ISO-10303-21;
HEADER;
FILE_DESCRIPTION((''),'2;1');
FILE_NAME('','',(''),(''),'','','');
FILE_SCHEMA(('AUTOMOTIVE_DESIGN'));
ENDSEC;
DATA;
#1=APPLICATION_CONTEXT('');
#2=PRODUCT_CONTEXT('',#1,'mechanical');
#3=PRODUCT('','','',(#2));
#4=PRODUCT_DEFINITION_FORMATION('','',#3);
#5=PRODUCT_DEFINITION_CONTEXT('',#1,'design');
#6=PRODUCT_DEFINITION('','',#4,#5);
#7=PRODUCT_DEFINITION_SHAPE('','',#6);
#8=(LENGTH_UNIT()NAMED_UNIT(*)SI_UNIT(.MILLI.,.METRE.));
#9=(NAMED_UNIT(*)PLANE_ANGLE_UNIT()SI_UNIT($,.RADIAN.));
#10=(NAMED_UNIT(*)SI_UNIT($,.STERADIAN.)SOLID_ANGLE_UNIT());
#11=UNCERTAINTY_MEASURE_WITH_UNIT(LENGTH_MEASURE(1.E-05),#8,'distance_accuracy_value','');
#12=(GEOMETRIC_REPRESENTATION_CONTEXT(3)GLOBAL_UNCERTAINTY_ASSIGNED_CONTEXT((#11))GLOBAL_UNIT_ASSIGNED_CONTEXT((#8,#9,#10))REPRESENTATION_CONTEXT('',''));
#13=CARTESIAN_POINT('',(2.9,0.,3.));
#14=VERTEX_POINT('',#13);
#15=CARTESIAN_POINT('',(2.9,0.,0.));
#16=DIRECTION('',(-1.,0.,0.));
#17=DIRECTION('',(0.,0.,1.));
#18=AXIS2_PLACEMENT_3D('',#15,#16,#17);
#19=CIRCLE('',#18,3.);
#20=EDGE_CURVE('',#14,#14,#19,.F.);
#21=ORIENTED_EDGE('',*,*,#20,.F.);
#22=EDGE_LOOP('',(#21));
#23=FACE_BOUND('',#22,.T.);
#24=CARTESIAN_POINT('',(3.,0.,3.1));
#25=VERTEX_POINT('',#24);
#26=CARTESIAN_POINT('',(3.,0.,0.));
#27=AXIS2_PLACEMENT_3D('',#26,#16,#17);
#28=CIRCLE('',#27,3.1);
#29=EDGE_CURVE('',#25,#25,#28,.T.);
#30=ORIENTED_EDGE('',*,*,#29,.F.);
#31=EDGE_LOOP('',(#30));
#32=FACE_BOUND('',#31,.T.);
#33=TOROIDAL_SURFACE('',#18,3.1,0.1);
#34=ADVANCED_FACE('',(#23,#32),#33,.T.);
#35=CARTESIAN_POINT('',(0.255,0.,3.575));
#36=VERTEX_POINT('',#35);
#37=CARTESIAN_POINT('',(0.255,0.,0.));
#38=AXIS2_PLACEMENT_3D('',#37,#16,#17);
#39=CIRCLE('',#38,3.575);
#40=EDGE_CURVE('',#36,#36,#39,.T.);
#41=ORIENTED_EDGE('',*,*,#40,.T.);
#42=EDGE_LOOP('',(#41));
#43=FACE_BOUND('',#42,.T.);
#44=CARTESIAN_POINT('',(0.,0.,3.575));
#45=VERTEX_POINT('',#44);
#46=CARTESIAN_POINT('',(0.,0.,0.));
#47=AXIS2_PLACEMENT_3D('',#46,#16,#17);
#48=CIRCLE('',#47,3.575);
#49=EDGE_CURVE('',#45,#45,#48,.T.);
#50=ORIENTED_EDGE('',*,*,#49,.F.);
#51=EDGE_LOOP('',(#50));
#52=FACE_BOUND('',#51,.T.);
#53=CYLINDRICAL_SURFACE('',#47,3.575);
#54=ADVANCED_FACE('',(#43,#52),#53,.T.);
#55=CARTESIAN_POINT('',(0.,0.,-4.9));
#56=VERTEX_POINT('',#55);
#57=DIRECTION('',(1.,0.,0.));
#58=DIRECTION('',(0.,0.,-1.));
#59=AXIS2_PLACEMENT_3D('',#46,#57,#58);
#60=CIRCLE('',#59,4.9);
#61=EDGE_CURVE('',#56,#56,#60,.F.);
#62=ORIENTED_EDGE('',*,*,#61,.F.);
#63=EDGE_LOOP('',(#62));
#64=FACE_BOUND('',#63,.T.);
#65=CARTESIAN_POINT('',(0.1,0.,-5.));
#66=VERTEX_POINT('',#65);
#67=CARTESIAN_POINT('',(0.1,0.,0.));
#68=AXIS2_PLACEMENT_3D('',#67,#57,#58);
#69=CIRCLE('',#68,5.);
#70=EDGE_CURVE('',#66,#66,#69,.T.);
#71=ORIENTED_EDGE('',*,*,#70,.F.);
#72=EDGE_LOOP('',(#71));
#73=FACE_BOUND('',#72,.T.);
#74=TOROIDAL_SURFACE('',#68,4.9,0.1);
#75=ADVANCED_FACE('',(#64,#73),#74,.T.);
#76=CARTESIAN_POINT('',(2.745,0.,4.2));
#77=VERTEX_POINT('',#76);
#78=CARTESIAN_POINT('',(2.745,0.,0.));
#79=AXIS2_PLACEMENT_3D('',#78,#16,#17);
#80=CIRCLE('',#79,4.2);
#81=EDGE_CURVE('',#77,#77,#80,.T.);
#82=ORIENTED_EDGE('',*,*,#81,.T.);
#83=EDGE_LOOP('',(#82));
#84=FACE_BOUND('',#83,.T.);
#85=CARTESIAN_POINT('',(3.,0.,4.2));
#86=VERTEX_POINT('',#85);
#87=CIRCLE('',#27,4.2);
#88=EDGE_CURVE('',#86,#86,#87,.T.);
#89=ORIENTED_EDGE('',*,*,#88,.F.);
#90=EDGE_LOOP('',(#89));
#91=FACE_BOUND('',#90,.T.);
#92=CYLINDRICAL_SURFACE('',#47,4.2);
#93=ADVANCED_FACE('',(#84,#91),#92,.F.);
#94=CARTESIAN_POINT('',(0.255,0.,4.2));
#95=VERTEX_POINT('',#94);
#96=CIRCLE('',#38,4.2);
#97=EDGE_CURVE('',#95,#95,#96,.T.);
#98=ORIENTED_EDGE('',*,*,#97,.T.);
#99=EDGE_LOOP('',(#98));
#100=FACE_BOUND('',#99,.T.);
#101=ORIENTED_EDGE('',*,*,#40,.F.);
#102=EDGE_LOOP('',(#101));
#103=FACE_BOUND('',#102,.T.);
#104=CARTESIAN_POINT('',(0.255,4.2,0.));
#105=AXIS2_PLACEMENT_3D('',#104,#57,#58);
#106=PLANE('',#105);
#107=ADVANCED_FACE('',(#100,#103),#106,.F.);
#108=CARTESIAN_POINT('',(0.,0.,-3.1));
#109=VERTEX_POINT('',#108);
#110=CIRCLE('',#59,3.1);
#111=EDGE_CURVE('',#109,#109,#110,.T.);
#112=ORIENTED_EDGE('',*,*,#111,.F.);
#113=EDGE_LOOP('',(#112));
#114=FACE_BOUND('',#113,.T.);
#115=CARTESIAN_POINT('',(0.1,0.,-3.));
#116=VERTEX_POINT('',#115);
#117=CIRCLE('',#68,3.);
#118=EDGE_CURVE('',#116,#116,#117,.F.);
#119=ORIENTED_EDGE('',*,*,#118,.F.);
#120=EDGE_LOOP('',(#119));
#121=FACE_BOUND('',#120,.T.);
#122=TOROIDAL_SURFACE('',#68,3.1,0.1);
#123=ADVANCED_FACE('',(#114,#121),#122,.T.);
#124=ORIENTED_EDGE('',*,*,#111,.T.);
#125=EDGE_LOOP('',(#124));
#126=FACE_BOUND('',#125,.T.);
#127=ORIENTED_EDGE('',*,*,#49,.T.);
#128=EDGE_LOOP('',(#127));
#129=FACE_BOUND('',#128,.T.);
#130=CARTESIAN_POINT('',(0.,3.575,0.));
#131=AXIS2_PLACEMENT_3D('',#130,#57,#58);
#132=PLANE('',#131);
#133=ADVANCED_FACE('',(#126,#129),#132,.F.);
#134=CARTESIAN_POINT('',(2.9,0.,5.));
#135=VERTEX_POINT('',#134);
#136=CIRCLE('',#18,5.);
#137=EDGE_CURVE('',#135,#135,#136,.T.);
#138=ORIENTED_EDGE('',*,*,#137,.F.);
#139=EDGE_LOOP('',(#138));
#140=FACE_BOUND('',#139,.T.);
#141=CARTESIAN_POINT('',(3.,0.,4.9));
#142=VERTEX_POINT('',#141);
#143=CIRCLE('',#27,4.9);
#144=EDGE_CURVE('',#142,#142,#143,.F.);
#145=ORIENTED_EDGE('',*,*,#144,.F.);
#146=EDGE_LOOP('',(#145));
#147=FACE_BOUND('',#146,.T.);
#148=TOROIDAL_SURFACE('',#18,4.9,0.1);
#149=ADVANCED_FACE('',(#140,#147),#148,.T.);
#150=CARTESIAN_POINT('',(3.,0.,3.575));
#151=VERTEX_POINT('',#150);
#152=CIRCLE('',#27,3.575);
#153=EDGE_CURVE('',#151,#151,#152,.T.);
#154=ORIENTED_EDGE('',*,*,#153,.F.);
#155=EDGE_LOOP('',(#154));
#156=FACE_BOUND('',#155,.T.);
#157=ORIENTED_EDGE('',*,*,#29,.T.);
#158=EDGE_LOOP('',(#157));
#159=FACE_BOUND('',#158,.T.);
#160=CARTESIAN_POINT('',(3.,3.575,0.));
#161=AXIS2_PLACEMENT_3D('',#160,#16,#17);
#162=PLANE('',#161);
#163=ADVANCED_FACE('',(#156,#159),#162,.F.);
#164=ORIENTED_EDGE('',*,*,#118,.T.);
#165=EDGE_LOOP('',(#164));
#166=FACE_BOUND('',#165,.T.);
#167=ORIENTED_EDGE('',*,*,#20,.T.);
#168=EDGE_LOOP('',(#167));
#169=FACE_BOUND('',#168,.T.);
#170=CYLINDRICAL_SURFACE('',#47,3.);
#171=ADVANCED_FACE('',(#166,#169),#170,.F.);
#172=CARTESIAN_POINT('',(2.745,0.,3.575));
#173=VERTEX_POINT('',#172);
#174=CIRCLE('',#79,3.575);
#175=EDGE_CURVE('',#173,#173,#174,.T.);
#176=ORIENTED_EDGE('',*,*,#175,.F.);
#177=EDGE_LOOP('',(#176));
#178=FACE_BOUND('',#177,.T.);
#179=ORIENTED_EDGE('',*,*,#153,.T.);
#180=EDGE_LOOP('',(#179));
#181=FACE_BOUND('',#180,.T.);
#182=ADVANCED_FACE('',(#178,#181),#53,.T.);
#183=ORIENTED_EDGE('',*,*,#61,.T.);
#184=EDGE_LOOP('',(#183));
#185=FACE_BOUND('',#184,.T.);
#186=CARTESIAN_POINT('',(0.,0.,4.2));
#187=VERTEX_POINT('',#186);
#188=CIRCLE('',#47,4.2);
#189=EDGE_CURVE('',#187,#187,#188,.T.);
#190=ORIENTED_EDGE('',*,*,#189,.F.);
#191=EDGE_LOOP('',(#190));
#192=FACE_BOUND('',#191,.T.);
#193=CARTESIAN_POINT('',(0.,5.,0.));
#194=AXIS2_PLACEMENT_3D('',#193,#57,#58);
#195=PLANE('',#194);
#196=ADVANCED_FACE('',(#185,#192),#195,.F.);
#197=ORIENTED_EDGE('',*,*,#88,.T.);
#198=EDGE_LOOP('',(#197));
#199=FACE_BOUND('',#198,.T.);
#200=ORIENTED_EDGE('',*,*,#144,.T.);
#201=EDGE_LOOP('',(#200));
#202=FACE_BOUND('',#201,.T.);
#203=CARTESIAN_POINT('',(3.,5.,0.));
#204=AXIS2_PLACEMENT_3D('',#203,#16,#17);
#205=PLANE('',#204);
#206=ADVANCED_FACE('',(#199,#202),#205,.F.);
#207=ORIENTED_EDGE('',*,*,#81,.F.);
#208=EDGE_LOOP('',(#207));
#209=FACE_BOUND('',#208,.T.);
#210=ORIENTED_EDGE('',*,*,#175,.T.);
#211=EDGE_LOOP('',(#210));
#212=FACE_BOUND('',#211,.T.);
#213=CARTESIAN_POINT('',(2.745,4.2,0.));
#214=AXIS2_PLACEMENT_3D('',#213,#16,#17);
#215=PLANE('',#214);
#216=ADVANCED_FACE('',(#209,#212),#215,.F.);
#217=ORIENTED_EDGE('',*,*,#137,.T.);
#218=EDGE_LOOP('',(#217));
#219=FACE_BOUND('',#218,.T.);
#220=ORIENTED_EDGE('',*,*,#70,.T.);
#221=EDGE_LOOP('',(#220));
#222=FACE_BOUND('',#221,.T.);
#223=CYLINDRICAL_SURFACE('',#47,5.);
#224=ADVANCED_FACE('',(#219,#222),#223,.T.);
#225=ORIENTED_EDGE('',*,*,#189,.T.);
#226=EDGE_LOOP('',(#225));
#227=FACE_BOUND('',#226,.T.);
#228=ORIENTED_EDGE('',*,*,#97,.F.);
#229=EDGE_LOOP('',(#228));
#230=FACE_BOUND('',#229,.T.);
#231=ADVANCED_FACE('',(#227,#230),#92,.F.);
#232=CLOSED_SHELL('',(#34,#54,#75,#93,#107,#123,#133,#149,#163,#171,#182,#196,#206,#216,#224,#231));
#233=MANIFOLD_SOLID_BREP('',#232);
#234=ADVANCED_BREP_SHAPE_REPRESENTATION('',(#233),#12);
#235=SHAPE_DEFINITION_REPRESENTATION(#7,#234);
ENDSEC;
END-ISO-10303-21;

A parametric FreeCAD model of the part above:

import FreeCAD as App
import Part
import Sketcher


def edges_at(feature, points):
    """Names of the edges that pass closest to the given points."""
    edges = feature.Shape.Edges
    near = lambda p: min(range(len(edges)), key=lambda i: edges[i].distToShape(Part.Vertex(*p))[0])
    return sorted({f"Edge{near(p) + 1}" for p in points})


def add_polygon(sketch, points):
    """Adds a closed chain of lines whose ends are joined by coincident constraints."""
    first, n = sketch.GeometryCount, len(points)
    for a, b in zip(points, points[1:] + points[:1]):
        sketch.addGeometry(Part.LineSegment(App.Vector(*a, 0), App.Vector(*b, 0)), False)
    for i in range(n):
        sketch.addConstraint(Sketcher.Constraint("Coincident", first + i, 2, first + (i + 1) % n, 1))

doc = App.newDocument("Part")
params = doc.addObject("Spreadsheet::Sheet", "Params")
for row, (alias, value) in enumerate([
    ("sketch1_width", "3 mm"),
    ("sketch1_height", "0.8 mm"),
    ("revolution_angle", "360 deg"),
    ("fillet_radius", "0.1 mm"),
    ("fillet2_radius", "0.1 mm"),
], start=1):
    params.set(f"A{row}", alias)
    params.set(f"B{row}", "=" + value)
    params.setAlias(f"B{row}", alias)

body = doc.addObject("PartDesign::Body", "Body")

sketch1 = body.newObject("Sketcher::SketchObject", "Sketch")
sketch1.AttachmentSupport = (doc.getObject("XY_Plane"), [""])
sketch1.MapMode = "FlatFace"
add_polygon(sketch1, [(0, 3), (3, 3), (3, 3.58), (2.75, 3.58), (2.75, 4.2), (3, 4.2), (3, 5), (0, 5), (0, 4.2), (0.26, 4.2), (0.26, 3.58), (0, 3.58)])
sketch1.addConstraint([
    Sketcher.Constraint("Horizontal", 0),
    Sketcher.Constraint("Vertical", 1),
    Sketcher.Constraint("Horizontal", 2),
    Sketcher.Constraint("Vertical", 3),
    Sketcher.Constraint("Horizontal", 4),
    Sketcher.Constraint("Vertical", 5),
    Sketcher.Constraint("Horizontal", 6),
    Sketcher.Constraint("Vertical", 7),
    Sketcher.Constraint("Horizontal", 8),
    Sketcher.Constraint("Vertical", 9),
    Sketcher.Constraint("Horizontal", 10),
    Sketcher.Constraint("Vertical", 11),
    Sketcher.Constraint("PointOnObject", 6, 2, -2),
    Sketcher.Constraint("PointOnObject", 10, 2, -2),
    Sketcher.Constraint("Horizontal", 4, 2, 7, 2),
    Sketcher.Constraint("Horizontal", 2, 2, 9, 2),
    Sketcher.Constraint("Vertical", 1, 2, 4, 2),
    Sketcher.Constraint("Equal", 4, 8),
    Sketcher.Constraint("DistanceX", 0, 1, 0, 2, 3.0),
    Sketcher.Constraint("DistanceY", 5, 1, 5, 2, 0.8),
    Sketcher.Constraint("DistanceY", -1, 1, 0, 2, 3.0),
    Sketcher.Constraint("DistanceY", -1, 1, 5, 2, 5.0),
    Sketcher.Constraint("DistanceX", 2, 2, 2, 1, 0.255),
    Sketcher.Constraint("DistanceY", 1, 1, 1, 2, 0.575),
])
sketch1.setExpression("Constraints[30]", "Params.sketch1_width")
sketch1.setExpression("Constraints[31]", "Params.sketch1_height")
revolution = body.newObject("PartDesign::Revolution", "Revolution")
revolution.Profile = sketch1
revolution.ReferenceAxis = (sketch1, ["H_Axis"])
revolution.setExpression("Angle", "Params.revolution_angle")
doc.recompute()

fillet = body.newObject("PartDesign::Fillet", "Fillet")
fillet.Base = (revolution, edges_at(revolution, [(0, 0, -5), (3, 0, -5)]))
fillet.setExpression("Radius", "Params.fillet_radius")
doc.recompute()

fillet2 = body.newObject("PartDesign::Fillet", "Fillet001")
fillet2.Base = (fillet, edges_at(fillet, [(3, 0, -3), (0, 0, -3)]))
fillet2.setExpression("Radius", "Params.fillet2_radius")

doc.recompute()
